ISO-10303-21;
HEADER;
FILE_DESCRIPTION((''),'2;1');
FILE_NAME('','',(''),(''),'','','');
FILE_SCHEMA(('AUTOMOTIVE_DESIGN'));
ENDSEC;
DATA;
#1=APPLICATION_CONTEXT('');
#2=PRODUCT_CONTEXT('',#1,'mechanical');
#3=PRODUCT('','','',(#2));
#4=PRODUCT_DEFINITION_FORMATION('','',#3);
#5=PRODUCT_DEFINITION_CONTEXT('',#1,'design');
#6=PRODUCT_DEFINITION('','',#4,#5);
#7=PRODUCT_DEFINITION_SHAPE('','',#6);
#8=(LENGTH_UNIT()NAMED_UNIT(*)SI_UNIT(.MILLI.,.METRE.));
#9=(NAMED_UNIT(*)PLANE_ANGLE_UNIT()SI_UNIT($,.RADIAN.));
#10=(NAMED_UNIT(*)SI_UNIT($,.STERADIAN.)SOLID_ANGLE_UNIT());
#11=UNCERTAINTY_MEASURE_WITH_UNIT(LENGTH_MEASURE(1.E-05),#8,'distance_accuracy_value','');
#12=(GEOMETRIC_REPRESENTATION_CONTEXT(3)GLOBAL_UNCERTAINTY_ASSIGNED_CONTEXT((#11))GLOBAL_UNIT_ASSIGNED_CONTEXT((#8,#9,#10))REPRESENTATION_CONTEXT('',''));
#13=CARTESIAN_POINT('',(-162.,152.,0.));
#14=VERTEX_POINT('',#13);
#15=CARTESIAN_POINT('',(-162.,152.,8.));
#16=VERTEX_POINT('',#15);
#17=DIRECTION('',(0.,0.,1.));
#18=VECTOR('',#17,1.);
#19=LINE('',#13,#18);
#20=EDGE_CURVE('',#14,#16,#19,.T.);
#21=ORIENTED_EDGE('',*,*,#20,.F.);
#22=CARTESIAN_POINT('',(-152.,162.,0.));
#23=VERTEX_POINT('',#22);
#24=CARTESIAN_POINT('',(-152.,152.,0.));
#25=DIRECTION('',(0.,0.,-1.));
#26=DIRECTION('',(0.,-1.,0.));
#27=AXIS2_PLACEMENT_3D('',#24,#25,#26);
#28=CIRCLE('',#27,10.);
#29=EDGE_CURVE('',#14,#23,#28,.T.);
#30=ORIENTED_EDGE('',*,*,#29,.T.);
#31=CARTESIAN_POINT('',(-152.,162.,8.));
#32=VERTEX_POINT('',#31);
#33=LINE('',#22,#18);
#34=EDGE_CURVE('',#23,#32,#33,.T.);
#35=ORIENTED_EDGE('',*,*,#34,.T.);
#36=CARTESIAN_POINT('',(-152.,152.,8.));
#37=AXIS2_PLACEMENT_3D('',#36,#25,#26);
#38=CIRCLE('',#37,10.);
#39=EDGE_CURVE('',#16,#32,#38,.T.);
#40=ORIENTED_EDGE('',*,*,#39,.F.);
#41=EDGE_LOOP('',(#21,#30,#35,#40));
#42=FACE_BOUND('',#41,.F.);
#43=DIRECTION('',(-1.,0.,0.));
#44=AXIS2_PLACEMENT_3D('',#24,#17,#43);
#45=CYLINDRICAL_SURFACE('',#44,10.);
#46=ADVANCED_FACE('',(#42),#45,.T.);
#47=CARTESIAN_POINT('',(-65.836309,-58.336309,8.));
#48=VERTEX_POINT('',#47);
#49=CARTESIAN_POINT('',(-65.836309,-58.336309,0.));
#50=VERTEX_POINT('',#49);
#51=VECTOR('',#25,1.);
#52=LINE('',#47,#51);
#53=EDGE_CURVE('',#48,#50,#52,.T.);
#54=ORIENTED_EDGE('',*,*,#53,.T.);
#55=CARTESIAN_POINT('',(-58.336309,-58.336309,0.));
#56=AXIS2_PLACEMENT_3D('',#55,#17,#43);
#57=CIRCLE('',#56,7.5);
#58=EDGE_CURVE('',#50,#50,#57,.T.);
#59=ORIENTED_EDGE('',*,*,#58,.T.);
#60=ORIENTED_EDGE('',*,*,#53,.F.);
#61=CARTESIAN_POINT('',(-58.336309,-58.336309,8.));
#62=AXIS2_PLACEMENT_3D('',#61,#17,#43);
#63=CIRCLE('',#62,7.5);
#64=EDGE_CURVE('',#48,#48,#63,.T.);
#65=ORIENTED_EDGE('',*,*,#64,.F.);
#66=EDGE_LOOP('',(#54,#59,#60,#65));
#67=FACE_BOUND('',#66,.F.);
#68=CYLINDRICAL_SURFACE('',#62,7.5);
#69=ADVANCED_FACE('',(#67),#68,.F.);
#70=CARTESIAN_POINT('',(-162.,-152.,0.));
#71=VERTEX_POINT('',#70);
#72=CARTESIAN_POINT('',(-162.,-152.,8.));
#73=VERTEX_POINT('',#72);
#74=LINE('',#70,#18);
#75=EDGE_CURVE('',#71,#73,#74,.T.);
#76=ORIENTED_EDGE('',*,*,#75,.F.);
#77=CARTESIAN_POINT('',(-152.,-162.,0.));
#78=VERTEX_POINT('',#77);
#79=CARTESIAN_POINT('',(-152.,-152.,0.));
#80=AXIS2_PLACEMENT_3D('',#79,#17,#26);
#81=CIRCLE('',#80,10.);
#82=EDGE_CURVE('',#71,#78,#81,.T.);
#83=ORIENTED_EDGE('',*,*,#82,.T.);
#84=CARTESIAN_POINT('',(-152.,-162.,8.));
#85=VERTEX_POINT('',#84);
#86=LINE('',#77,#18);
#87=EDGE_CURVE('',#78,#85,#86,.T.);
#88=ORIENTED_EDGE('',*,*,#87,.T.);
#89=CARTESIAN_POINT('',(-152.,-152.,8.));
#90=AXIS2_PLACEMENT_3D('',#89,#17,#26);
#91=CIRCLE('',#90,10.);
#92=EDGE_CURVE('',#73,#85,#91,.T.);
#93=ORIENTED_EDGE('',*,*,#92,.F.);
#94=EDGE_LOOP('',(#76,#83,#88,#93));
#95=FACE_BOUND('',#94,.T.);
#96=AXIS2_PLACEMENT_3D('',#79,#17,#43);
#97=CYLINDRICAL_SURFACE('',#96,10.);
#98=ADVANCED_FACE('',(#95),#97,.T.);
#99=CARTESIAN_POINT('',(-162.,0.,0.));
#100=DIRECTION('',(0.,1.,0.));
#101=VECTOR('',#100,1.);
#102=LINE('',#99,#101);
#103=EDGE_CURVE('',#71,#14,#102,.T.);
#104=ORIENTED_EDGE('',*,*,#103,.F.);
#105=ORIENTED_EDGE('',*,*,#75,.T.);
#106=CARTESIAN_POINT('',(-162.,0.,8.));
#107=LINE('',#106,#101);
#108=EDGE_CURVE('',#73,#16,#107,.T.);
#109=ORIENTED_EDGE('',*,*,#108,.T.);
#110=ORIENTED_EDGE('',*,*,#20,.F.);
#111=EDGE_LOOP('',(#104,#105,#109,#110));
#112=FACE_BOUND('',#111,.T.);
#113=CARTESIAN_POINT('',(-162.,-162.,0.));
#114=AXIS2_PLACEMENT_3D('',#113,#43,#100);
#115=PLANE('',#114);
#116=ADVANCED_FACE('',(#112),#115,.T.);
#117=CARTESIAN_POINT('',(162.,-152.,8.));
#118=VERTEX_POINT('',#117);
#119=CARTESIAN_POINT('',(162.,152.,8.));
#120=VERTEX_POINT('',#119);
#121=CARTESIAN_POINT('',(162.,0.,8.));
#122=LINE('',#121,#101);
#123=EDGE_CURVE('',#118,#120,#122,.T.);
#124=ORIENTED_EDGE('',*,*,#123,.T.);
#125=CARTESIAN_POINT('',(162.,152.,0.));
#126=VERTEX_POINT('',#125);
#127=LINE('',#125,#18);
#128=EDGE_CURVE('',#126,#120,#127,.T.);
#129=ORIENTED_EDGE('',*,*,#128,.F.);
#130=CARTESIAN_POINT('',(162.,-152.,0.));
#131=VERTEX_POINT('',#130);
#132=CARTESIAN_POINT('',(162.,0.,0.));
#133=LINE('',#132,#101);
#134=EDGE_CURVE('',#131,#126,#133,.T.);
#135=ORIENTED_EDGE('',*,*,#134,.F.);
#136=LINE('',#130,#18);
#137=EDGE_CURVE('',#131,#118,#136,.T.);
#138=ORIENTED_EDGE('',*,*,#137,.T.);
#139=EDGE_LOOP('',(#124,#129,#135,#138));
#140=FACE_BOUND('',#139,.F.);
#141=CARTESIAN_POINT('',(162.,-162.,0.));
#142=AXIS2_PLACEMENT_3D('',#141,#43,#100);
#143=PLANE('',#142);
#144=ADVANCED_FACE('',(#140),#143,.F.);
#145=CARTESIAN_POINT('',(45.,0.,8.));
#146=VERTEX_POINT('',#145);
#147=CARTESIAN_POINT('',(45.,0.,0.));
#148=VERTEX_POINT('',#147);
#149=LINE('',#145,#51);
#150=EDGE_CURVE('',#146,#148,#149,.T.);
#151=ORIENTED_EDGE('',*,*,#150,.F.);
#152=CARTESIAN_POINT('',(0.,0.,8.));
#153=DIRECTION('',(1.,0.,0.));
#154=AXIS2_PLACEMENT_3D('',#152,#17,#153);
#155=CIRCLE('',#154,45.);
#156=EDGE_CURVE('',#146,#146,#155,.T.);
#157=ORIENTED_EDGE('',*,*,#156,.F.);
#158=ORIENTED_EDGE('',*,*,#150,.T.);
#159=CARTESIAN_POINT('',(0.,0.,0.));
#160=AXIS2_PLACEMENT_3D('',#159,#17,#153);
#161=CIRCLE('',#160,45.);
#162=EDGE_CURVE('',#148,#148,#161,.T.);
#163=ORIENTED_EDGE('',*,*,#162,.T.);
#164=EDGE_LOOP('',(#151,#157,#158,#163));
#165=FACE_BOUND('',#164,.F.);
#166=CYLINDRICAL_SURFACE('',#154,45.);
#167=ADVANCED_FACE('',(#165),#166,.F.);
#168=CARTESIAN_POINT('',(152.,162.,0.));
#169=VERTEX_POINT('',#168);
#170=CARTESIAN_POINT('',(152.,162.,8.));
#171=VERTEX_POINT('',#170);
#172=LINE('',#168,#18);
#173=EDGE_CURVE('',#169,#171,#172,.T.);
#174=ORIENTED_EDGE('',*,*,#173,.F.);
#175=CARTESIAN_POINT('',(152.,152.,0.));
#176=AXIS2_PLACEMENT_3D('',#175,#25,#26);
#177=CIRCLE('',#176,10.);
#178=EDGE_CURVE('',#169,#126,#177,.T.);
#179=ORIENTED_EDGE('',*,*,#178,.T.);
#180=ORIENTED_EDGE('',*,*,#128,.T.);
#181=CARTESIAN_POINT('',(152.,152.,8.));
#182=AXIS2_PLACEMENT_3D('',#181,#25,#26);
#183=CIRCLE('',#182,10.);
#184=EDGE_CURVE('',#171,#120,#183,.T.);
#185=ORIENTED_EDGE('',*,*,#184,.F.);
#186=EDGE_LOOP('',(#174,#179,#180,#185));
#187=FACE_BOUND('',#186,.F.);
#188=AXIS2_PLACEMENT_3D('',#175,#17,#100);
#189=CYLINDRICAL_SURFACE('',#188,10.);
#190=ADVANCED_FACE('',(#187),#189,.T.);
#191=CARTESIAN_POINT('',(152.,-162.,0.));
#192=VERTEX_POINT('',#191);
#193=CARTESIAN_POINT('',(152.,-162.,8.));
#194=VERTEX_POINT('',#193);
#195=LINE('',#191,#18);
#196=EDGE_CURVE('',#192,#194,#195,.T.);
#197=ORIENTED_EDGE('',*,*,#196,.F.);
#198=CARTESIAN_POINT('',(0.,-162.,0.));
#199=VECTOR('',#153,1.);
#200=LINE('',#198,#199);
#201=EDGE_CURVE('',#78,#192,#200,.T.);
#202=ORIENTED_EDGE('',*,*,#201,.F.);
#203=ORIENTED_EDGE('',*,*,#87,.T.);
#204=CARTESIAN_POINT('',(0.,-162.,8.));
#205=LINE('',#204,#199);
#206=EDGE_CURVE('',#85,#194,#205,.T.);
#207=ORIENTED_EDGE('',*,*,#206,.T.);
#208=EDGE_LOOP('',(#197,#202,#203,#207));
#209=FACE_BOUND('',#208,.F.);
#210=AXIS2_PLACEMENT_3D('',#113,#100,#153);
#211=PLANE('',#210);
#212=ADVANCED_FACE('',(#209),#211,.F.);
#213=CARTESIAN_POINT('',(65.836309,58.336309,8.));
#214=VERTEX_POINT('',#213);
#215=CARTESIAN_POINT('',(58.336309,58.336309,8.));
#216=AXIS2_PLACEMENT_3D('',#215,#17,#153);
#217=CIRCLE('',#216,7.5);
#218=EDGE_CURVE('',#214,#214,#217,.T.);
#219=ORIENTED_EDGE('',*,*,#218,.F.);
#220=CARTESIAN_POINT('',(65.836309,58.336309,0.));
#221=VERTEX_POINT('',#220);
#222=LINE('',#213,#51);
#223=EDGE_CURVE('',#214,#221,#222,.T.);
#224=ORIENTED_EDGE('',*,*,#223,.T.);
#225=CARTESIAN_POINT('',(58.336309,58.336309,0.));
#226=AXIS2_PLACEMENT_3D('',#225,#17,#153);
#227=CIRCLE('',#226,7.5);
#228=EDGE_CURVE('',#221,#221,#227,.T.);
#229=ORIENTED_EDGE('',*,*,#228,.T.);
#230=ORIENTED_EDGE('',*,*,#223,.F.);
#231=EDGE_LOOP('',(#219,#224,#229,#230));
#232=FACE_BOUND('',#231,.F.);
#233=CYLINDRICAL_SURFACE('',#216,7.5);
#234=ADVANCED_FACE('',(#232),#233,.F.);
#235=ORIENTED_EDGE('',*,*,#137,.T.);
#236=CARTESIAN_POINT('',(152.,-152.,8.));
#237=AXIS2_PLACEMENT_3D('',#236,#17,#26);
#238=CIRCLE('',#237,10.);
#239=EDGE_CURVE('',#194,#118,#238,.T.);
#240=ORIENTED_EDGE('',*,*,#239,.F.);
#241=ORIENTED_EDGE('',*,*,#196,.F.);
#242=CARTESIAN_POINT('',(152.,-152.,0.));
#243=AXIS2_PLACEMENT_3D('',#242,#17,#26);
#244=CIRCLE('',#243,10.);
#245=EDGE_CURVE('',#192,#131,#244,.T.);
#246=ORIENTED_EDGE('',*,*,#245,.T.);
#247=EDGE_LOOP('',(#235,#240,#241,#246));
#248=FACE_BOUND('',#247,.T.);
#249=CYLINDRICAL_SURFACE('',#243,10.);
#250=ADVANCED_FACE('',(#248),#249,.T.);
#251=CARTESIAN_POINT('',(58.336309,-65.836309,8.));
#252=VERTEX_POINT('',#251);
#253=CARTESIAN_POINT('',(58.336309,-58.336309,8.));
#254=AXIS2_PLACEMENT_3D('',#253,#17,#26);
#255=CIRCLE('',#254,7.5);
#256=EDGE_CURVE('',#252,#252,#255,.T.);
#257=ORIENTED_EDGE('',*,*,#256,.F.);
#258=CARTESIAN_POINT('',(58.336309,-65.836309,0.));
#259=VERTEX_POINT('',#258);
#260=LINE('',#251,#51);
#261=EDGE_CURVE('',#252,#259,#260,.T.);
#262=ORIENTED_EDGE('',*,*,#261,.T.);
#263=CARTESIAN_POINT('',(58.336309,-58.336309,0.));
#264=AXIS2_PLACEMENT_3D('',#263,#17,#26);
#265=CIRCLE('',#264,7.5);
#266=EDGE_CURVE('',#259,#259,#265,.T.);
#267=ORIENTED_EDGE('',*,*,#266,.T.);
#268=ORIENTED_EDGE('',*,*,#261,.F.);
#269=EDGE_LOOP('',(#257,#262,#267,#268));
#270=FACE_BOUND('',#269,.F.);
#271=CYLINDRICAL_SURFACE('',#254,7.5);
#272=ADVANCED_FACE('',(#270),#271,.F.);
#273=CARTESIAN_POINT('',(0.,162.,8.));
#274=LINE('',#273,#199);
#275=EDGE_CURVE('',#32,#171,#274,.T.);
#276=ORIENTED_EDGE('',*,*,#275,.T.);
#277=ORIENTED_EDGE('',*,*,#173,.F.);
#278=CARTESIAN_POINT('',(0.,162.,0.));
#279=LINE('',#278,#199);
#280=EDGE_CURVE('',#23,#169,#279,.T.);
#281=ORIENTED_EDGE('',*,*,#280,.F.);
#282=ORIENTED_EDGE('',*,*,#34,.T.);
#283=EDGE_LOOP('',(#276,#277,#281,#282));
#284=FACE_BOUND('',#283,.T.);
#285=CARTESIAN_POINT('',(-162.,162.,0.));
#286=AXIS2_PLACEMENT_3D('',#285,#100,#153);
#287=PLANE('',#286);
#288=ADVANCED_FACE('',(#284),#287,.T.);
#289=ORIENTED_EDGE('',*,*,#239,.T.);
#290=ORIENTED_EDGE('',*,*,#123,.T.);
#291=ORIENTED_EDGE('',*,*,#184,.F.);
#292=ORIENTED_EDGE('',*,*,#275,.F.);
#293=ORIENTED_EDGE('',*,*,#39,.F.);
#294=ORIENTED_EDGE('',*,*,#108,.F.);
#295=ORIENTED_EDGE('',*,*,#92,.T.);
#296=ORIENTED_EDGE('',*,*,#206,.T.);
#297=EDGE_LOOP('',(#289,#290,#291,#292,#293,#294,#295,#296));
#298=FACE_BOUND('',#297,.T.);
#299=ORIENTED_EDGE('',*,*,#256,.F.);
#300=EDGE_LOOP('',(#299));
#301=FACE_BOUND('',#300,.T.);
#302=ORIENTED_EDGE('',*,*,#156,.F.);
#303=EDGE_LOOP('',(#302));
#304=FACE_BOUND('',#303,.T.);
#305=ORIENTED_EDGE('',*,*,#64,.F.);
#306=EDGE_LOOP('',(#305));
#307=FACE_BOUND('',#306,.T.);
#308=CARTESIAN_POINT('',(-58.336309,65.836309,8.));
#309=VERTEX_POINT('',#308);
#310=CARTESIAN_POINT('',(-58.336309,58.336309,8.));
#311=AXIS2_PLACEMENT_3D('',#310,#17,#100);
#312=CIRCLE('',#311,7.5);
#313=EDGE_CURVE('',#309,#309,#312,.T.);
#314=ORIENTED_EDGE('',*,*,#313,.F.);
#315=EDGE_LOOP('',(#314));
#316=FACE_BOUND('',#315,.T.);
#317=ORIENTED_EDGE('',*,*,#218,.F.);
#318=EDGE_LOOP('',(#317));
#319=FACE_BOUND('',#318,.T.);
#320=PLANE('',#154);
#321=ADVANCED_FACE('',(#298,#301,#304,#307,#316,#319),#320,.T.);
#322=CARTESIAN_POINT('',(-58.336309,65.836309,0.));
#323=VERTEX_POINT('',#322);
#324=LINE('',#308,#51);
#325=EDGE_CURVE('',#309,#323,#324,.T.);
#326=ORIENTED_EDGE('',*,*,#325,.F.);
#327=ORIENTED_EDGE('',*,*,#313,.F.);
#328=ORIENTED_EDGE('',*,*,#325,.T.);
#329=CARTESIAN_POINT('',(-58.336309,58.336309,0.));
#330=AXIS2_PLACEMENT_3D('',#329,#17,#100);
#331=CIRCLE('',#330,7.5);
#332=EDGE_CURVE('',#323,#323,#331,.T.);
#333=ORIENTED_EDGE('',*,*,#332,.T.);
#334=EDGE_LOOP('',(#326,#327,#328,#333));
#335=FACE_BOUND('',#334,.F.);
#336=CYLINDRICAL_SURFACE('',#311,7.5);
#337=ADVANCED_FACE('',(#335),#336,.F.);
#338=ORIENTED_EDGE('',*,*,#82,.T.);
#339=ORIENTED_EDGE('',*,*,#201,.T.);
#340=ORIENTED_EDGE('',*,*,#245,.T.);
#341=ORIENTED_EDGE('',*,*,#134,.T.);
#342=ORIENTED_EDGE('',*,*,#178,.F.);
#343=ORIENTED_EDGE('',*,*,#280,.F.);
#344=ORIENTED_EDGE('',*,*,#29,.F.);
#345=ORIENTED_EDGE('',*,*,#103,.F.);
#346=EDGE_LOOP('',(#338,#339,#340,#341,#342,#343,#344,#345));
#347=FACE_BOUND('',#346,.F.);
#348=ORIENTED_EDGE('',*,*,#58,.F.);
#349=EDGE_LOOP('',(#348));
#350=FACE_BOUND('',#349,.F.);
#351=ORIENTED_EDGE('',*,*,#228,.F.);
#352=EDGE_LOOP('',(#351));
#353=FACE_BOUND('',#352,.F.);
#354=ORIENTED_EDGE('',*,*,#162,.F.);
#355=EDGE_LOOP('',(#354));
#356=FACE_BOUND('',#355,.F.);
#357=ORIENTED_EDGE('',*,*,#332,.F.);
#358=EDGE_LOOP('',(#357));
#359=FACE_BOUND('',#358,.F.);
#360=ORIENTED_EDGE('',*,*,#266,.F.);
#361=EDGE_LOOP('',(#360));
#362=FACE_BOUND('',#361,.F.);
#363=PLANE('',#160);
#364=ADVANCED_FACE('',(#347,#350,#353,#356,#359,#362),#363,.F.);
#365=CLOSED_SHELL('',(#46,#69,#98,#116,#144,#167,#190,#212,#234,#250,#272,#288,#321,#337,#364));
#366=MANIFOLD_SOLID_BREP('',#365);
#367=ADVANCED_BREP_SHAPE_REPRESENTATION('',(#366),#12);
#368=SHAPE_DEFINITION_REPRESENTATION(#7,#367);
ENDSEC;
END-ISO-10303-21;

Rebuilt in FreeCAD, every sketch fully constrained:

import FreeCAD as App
import Part
import Sketcher

V = App.Vector
Q = App.Units.Quantity


def edges_at(feature, points):
    """Names of the edges that pass closest to the given points."""
    edges = feature.Shape.Edges
    near = lambda p: min(range(len(edges)), key=lambda i: edges[i].distToShape(Part.Vertex(*p))[0])
    return sorted({f"Edge{near(p) + 1}" for p in points})

doc = App.newDocument("Part")
body = doc.addObject("PartDesign::Body", "Body")

sketch1 = doc.addObject("Sketcher::SketchObject", "Sketch")
body.addObject(sketch1)
sketch1.AttachmentSupport = (doc.XY_Plane, [""])
sketch1.MapMode = "FlatFace"
sketch1.addGeometry([
    Part.LineSegment(V(-162, 162, 0), V(-162, -162, 0)),
    Part.LineSegment(V(-162, -162, 0), V(162, -162, 0)),
    Part.LineSegment(V(162, -162, 0), V(162, 162, 0)),
    Part.LineSegment(V(162, 162, 0), V(-162, 162, 0)),
], False)
sketch1.addConstraint([
    Sketcher.Constraint("Coincident", 0, 2, 1, 1),
    Sketcher.Constraint("Coincident", 1, 2, 2, 1),
    Sketcher.Constraint("Coincident", 2, 2, 3, 1),
    Sketcher.Constraint("Coincident", 3, 2, 0, 1),
    Sketcher.Constraint("Vertical", 0),
    Sketcher.Constraint("Horizontal", 1),
    Sketcher.Constraint("Vertical", 2),
    Sketcher.Constraint("Horizontal", 3),
    Sketcher.Constraint("Symmetric", 0, 2, 2, 2, -1, 1),
    Sketcher.Constraint("Equal", 3, 0),
    Sketcher.Constraint("DistanceX", 1, 1, 1, 2, Q("324 mm")),
])
pad1 = doc.addObject("PartDesign::Pad", "Pad")
body.addObject(pad1)
pad1.Profile = sketch1
pad1.Length = 8

sketch2 = doc.addObject("Sketcher::SketchObject", "Sketch001")
body.addObject(sketch2)
sketch2.AttachmentSupport = (doc.XY_Plane, [""])
sketch2.MapMode = "FlatFace"
sketch2.AttachmentOffset = App.Placement(V(0, 0, 8), App.Rotation())
sketch2.addGeometry(Part.Circle(V(58, 58, 0), V(0, 0, 1), 8), False)
sketch2.addConstraint([
    Sketcher.Constraint("Diameter", 0, Q("15 mm")),
    Sketcher.Constraint("DistanceX", -1, 1, 0, 3, Q("58.336309 mm")),
    Sketcher.Constraint("DistanceY", -1, 1, 0, 3, Q("58.336309 mm")),
])
pocket1 = doc.addObject("PartDesign::Pocket", "Pocket")
body.addObject(pocket1)
pocket1.Profile = sketch2
pocket1.Length = 8

sketch3 = doc.addObject("Sketcher::SketchObject", "Sketch002")
body.addObject(sketch3)
sketch3.AttachmentSupport = (doc.XY_Plane, [""])
sketch3.MapMode = "FlatFace"
sketch3.AttachmentOffset = App.Placement(V(0, 0, 8), App.Rotation())
sketch3.addGeometry(Part.Circle(V(0, 0, 0), V(0, 0, 1), 45), False)
sketch3.addConstraint([
    Sketcher.Constraint("Coincident", 0, 3, -1, 1),
    Sketcher.Constraint("Diameter", 0, Q("90 mm")),
])
pocket2 = doc.addObject("PartDesign::Pocket", "Pocket001")
body.addObject(pocket2)
pocket2.Profile = sketch3
pocket2.Length = 10
doc.recompute()

polarpattern = doc.addObject("PartDesign::PolarPattern", "PolarPattern")
body.addObject(polarpattern)
polarpattern.Originals = [pocket1]
polarpattern.Axis = (doc.Z_Axis, [""])
polarpattern.Angle = 360
polarpattern.Occurrences = 4
body.Tip = polarpattern
doc.recompute()

fillet = doc.addObject("PartDesign::Fillet", "Fillet")
body.addObject(fillet)
fillet.Base = (polarpattern, edges_at(polarpattern, [
    (162, -162, 4),
    (-162, -162, 4),
    (-162, 162, 4),
    (162, 162, 4),
]))
fillet.Radius = 10

doc.recompute()
